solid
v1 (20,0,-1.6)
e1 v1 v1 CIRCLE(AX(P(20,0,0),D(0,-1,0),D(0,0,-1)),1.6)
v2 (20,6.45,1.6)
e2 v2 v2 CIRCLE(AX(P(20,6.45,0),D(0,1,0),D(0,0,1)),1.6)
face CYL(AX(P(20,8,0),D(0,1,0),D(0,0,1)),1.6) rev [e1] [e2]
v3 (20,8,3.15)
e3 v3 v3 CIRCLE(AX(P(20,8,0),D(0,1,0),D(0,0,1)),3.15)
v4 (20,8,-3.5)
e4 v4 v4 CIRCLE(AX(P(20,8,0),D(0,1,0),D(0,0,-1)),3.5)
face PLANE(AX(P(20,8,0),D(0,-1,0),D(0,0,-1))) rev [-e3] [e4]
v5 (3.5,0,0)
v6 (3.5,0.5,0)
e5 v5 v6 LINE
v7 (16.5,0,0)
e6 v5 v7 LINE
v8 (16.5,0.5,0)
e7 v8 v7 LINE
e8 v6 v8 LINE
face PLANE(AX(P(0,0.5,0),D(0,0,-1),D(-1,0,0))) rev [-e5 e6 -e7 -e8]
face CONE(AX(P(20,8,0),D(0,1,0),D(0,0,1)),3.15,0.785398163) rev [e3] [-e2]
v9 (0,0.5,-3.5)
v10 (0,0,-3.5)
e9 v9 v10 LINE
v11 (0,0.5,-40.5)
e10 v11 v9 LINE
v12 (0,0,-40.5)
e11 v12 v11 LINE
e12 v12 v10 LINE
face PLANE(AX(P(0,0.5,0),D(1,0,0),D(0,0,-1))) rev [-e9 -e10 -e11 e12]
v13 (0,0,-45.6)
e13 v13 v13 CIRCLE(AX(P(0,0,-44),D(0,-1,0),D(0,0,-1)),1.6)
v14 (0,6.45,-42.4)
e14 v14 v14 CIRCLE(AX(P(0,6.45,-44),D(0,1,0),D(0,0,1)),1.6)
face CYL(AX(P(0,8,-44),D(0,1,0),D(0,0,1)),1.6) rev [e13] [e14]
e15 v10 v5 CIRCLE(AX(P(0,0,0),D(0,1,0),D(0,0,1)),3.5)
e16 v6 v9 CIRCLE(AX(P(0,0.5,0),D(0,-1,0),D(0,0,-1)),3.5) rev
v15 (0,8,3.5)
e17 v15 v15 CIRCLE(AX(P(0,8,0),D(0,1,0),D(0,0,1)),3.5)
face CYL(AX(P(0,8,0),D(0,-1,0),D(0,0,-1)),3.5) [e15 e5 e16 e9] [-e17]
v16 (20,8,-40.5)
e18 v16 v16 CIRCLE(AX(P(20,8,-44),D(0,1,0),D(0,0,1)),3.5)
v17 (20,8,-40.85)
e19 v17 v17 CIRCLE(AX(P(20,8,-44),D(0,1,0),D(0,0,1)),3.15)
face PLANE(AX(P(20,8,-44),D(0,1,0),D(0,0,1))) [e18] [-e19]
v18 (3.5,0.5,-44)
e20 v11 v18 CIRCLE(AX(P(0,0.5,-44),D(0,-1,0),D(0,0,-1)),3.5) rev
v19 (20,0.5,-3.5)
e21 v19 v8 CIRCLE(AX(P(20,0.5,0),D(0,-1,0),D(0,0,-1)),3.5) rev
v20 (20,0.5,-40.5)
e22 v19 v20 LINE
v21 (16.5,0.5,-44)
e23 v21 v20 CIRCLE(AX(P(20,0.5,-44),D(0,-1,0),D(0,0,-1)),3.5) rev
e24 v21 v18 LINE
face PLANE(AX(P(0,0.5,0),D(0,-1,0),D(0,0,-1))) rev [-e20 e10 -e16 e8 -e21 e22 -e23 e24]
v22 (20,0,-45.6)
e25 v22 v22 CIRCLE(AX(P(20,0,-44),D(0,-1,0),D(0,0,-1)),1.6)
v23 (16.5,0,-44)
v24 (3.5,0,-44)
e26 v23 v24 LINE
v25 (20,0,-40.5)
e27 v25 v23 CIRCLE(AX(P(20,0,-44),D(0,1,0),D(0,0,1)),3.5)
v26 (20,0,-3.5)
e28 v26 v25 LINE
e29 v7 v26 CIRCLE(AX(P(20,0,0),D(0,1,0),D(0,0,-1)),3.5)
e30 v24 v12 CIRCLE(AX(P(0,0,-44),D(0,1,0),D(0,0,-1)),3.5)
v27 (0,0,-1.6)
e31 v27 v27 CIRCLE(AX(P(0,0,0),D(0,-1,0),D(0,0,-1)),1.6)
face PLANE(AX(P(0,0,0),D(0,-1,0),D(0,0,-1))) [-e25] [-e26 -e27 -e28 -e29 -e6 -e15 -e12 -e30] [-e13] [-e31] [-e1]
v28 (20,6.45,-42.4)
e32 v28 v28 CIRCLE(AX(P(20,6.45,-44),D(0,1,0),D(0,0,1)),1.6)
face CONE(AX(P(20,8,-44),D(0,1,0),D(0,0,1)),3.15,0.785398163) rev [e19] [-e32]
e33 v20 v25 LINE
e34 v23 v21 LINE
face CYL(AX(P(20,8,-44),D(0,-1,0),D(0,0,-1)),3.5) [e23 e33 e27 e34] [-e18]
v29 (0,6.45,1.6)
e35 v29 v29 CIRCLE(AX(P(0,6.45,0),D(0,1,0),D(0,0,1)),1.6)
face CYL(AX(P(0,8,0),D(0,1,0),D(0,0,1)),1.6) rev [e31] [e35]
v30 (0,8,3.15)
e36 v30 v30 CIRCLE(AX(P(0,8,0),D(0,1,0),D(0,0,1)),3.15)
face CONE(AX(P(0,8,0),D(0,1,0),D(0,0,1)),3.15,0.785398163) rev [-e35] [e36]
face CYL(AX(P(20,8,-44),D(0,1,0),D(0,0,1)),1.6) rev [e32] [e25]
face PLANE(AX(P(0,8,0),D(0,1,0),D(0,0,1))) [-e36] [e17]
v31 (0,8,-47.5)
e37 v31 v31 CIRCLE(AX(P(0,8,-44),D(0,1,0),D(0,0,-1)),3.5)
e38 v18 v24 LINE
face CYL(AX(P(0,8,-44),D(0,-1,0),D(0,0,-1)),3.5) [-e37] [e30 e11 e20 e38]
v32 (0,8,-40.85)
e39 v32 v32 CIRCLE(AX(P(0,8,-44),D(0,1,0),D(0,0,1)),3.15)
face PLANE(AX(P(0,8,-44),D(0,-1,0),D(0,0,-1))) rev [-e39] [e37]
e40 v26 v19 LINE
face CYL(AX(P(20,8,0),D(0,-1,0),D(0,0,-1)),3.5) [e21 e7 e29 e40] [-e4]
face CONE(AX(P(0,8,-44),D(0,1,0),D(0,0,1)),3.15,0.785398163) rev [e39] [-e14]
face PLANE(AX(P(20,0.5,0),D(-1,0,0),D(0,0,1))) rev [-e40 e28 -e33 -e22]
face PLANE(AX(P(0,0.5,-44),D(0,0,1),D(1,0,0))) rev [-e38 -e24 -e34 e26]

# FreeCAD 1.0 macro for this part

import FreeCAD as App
import Part
import Sketcher
Q = App.Units.Quantity


def add_polygon(sketch, points):
    """Adds a closed chain of lines whose ends are joined by coincident constraints."""
    first, n = sketch.GeometryCount, len(points)
    for a, b in zip(points, points[1:] + points[:1]):
        sketch.addGeometry(Part.LineSegment(App.Vector(*a, 0), App.Vector(*b, 0)), False)
    for i in range(n):
        sketch.addConstraint(Sketcher.Constraint("Coincident", first + i, 2, first + (i + 1) % n, 1))

doc = App.newDocument("Part")
body = doc.addObject("PartDesign::Body", "Body")

# Sketch on XZ plane
sketch1 = body.newObject("Sketcher::SketchObject", "Sketch")
sketch1.AttachmentSupport = (doc.getObject("XZ_Plane"), [""])
sketch1.MapMode = "FlatFace"
add_polygon(sketch1, [(0, -44), (0, 0), (20, 0), (20, -44)])  # lines 0-3
sketch1.addConstraint([
    Sketcher.Constraint("Vertical", 0),
    Sketcher.Constraint("Horizontal", 1),
    Sketcher.Constraint("Vertical", 2),
    Sketcher.Constraint("Horizontal", 3),
    Sketcher.Constraint("Coincident", 0, 2, -1, 1),
    Sketcher.Constraint("DistanceX", 1, 1, 1, 2, Q("20 mm")),
    Sketcher.Constraint("DistanceY", 0, 1, 0, 2, Q("44 mm")),
])
pad1 = body.newObject("PartDesign::Pad", "Pad")
pad1.Profile = sketch1
pad1.Length = 0.5
pad1.Reversed = True

# Sketch on XZ plane
sketch2 = body.newObject("Sketcher::SketchObject", "Sketch001")
sketch2.AttachmentSupport = (doc.getObject("XZ_Plane"), [""])
sketch2.MapMode = "FlatFace"
sketch2.addGeometry([
    Part.Circle(App.Vector(20, -44, 0), App.Vector(0, 0, 1), 3.5),
    Part.Circle(App.Vector(0, -44, 0), App.Vector(0, 0, 1), 3.5),
    Part.Circle(App.Vector(20, 0, 0), App.Vector(0, 0, 1), 3.5),
    Part.Circle(App.Vector(0, 0, 0), App.Vector(0, 0, 1), 3.5),
], False)
sketch2.addConstraint([
    Sketcher.Constraint("Coincident", 3, 3, -1, 1),
    Sketcher.Constraint("Equal", 0, 1),
    Sketcher.Constraint("Equal", 1, 2),
    Sketcher.Constraint("Equal", 2, 3),
    Sketcher.Constraint("PointOnObject", 1, 3, -2),
    Sketcher.Constraint("PointOnObject", 2, 3, -1),
    Sketcher.Constraint("Horizontal", 0, 3, 1, 3),
    Sketcher.Constraint("Vertical", 0, 3, 2, 3),
    Sketcher.Constraint("Diameter", 0, Q("7 mm")),
    Sketcher.Constraint("DistanceX", -1, 1, 0, 3, Q("20 mm")),
    Sketcher.Constraint("DistanceY", 0, 3, -1, 1, Q("44 mm")),
])
pad2 = body.newObject("PartDesign::Pad", "Pad001")
pad2.Profile = sketch2
pad2.Length = 8
pad2.Reversed = True

# Sketch on XZ plane
sketch3 = body.newObject("Sketcher::SketchObject", "Sketch002")
sketch3.AttachmentSupport = (doc.getObject("XZ_Plane"), [""])
sketch3.MapMode = "FlatFace"
sketch3.AttachmentOffset = App.Placement(App.Vector(0, 0, -8), App.Rotation())
sketch3.addGeometry([
    Part.Circle(App.Vector(20, -44, 0), App.Vector(0, 0, 1), 1.6),
    Part.Circle(App.Vector(0, -44, 0), App.Vector(0, 0, 1), 1.6),
    Part.Circle(App.Vector(0, 0, 0), App.Vector(0, 0, 1), 1.6),
    Part.Circle(App.Vector(20, 0, 0), App.Vector(0, 0, 1), 1.6),
], False)
sketch3.addConstraint([
    Sketcher.Constraint("Coincident", 2, 3, -1, 1),
    Sketcher.Constraint("Equal", 0, 1),
    Sketcher.Constraint("Equal", 1, 2),
    Sketcher.Constraint("Equal", 2, 3),
    Sketcher.Constraint("PointOnObject", 1, 3, -2),
    Sketcher.Constraint("PointOnObject", 3, 3, -1),
    Sketcher.Constraint("Horizontal", 0, 3, 1, 3),
    Sketcher.Constraint("Vertical", 0, 3, 3, 3),
    Sketcher.Constraint("Diameter", 0, Q("3.2 mm")),
    Sketcher.Constraint("DistanceX", -1, 1, 0, 3, Q("20 mm")),
    Sketcher.Constraint("DistanceY", 0, 3, -1, 1, Q("44 mm")),
])
doc.recompute()
hole = body.newObject("PartDesign::Hole", "Hole")
hole.Profile = sketch3
hole.ThreadType = "None"
hole.Diameter = 3.2
hole.DepthType = "Dimension"
hole.Depth = 13.038623
hole.DrillPoint = "Angled"
hole.DrillPointAngle = 118
hole.HoleCutType = "Countersink"
hole.HoleCutDiameter = 6.3
hole.HoleCutCountersinkAngle = 90
hole.Reversed = True

doc.recompute()
